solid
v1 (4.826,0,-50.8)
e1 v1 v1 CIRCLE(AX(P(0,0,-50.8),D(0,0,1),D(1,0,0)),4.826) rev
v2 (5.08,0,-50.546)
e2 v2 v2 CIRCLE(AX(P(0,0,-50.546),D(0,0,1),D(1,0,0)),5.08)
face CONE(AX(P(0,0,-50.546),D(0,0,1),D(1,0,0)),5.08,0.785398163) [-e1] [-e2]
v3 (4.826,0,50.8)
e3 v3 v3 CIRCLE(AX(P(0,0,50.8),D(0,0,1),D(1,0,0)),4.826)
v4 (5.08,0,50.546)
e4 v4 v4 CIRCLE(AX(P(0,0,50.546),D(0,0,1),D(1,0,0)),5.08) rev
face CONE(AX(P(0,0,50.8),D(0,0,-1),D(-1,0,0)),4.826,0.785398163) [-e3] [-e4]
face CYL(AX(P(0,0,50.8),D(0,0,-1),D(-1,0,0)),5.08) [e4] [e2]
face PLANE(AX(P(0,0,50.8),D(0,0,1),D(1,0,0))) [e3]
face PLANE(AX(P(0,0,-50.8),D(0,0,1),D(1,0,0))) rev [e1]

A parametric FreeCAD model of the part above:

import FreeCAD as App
import Part
import Sketcher
Q = App.Units.Quantity


def edges_at(feature, points):
    """Names of the edges that pass closest to the given points."""
    edges = feature.Shape.Edges
    near = lambda p: min(range(len(edges)), key=lambda i: edges[i].distToShape(Part.Vertex(*p))[0])
    return sorted({f"Edge{near(p) + 1}" for p in points})

doc = App.newDocument("Part")
params = doc.addObject("Spreadsheet::Sheet", "Params")
for row, (alias, value) in enumerate([
    ("sketch1_diameter", "0.4 in"),
    ("pad1_length", "4 in"),
    ("chamfer_size", "0.01 in"),
], start=1):
    params.set(f"A{row}", alias)
    params.set(f"B{row}", "=" + value)
    params.setAlias(f"B{row}", alias)

body = doc.addObject("PartDesign::Body", "Body")

sketch1 = body.newObject("Sketcher::SketchObject", "Sketch")
sketch1.AttachmentSupport = (doc.getObject("XY_Plane"), [""])
sketch1.MapMode = "FlatFace"
sketch1.addGeometry(Part.Circle(App.Vector(0, 0, 0), App.Vector(0, 0, 1), 5.08), False)
sketch1.addConstraint([
    Sketcher.Constraint("Coincident", 0, 3, -1, 1),
    Sketcher.Constraint("Diameter", 0, Q("0.4 in")),
])
sketch1.setExpression("Constraints[1]", "Params.sketch1_diameter")
pad1 = body.newObject("PartDesign::Pad", "Pad")
pad1.Profile = sketch1
pad1.setExpression("Length", "Params.pad1_length")
pad1.Midplane = True
doc.recompute()

chamfer = body.newObject("PartDesign::Chamfer", "Chamfer")
chamfer.Base = (pad1, edges_at(pad1, [(-5.08, 0, -50.8), (-5.08, 0, 50.8)]))
chamfer.setExpression("Size", "Params.chamfer_size")

doc.recompute()
